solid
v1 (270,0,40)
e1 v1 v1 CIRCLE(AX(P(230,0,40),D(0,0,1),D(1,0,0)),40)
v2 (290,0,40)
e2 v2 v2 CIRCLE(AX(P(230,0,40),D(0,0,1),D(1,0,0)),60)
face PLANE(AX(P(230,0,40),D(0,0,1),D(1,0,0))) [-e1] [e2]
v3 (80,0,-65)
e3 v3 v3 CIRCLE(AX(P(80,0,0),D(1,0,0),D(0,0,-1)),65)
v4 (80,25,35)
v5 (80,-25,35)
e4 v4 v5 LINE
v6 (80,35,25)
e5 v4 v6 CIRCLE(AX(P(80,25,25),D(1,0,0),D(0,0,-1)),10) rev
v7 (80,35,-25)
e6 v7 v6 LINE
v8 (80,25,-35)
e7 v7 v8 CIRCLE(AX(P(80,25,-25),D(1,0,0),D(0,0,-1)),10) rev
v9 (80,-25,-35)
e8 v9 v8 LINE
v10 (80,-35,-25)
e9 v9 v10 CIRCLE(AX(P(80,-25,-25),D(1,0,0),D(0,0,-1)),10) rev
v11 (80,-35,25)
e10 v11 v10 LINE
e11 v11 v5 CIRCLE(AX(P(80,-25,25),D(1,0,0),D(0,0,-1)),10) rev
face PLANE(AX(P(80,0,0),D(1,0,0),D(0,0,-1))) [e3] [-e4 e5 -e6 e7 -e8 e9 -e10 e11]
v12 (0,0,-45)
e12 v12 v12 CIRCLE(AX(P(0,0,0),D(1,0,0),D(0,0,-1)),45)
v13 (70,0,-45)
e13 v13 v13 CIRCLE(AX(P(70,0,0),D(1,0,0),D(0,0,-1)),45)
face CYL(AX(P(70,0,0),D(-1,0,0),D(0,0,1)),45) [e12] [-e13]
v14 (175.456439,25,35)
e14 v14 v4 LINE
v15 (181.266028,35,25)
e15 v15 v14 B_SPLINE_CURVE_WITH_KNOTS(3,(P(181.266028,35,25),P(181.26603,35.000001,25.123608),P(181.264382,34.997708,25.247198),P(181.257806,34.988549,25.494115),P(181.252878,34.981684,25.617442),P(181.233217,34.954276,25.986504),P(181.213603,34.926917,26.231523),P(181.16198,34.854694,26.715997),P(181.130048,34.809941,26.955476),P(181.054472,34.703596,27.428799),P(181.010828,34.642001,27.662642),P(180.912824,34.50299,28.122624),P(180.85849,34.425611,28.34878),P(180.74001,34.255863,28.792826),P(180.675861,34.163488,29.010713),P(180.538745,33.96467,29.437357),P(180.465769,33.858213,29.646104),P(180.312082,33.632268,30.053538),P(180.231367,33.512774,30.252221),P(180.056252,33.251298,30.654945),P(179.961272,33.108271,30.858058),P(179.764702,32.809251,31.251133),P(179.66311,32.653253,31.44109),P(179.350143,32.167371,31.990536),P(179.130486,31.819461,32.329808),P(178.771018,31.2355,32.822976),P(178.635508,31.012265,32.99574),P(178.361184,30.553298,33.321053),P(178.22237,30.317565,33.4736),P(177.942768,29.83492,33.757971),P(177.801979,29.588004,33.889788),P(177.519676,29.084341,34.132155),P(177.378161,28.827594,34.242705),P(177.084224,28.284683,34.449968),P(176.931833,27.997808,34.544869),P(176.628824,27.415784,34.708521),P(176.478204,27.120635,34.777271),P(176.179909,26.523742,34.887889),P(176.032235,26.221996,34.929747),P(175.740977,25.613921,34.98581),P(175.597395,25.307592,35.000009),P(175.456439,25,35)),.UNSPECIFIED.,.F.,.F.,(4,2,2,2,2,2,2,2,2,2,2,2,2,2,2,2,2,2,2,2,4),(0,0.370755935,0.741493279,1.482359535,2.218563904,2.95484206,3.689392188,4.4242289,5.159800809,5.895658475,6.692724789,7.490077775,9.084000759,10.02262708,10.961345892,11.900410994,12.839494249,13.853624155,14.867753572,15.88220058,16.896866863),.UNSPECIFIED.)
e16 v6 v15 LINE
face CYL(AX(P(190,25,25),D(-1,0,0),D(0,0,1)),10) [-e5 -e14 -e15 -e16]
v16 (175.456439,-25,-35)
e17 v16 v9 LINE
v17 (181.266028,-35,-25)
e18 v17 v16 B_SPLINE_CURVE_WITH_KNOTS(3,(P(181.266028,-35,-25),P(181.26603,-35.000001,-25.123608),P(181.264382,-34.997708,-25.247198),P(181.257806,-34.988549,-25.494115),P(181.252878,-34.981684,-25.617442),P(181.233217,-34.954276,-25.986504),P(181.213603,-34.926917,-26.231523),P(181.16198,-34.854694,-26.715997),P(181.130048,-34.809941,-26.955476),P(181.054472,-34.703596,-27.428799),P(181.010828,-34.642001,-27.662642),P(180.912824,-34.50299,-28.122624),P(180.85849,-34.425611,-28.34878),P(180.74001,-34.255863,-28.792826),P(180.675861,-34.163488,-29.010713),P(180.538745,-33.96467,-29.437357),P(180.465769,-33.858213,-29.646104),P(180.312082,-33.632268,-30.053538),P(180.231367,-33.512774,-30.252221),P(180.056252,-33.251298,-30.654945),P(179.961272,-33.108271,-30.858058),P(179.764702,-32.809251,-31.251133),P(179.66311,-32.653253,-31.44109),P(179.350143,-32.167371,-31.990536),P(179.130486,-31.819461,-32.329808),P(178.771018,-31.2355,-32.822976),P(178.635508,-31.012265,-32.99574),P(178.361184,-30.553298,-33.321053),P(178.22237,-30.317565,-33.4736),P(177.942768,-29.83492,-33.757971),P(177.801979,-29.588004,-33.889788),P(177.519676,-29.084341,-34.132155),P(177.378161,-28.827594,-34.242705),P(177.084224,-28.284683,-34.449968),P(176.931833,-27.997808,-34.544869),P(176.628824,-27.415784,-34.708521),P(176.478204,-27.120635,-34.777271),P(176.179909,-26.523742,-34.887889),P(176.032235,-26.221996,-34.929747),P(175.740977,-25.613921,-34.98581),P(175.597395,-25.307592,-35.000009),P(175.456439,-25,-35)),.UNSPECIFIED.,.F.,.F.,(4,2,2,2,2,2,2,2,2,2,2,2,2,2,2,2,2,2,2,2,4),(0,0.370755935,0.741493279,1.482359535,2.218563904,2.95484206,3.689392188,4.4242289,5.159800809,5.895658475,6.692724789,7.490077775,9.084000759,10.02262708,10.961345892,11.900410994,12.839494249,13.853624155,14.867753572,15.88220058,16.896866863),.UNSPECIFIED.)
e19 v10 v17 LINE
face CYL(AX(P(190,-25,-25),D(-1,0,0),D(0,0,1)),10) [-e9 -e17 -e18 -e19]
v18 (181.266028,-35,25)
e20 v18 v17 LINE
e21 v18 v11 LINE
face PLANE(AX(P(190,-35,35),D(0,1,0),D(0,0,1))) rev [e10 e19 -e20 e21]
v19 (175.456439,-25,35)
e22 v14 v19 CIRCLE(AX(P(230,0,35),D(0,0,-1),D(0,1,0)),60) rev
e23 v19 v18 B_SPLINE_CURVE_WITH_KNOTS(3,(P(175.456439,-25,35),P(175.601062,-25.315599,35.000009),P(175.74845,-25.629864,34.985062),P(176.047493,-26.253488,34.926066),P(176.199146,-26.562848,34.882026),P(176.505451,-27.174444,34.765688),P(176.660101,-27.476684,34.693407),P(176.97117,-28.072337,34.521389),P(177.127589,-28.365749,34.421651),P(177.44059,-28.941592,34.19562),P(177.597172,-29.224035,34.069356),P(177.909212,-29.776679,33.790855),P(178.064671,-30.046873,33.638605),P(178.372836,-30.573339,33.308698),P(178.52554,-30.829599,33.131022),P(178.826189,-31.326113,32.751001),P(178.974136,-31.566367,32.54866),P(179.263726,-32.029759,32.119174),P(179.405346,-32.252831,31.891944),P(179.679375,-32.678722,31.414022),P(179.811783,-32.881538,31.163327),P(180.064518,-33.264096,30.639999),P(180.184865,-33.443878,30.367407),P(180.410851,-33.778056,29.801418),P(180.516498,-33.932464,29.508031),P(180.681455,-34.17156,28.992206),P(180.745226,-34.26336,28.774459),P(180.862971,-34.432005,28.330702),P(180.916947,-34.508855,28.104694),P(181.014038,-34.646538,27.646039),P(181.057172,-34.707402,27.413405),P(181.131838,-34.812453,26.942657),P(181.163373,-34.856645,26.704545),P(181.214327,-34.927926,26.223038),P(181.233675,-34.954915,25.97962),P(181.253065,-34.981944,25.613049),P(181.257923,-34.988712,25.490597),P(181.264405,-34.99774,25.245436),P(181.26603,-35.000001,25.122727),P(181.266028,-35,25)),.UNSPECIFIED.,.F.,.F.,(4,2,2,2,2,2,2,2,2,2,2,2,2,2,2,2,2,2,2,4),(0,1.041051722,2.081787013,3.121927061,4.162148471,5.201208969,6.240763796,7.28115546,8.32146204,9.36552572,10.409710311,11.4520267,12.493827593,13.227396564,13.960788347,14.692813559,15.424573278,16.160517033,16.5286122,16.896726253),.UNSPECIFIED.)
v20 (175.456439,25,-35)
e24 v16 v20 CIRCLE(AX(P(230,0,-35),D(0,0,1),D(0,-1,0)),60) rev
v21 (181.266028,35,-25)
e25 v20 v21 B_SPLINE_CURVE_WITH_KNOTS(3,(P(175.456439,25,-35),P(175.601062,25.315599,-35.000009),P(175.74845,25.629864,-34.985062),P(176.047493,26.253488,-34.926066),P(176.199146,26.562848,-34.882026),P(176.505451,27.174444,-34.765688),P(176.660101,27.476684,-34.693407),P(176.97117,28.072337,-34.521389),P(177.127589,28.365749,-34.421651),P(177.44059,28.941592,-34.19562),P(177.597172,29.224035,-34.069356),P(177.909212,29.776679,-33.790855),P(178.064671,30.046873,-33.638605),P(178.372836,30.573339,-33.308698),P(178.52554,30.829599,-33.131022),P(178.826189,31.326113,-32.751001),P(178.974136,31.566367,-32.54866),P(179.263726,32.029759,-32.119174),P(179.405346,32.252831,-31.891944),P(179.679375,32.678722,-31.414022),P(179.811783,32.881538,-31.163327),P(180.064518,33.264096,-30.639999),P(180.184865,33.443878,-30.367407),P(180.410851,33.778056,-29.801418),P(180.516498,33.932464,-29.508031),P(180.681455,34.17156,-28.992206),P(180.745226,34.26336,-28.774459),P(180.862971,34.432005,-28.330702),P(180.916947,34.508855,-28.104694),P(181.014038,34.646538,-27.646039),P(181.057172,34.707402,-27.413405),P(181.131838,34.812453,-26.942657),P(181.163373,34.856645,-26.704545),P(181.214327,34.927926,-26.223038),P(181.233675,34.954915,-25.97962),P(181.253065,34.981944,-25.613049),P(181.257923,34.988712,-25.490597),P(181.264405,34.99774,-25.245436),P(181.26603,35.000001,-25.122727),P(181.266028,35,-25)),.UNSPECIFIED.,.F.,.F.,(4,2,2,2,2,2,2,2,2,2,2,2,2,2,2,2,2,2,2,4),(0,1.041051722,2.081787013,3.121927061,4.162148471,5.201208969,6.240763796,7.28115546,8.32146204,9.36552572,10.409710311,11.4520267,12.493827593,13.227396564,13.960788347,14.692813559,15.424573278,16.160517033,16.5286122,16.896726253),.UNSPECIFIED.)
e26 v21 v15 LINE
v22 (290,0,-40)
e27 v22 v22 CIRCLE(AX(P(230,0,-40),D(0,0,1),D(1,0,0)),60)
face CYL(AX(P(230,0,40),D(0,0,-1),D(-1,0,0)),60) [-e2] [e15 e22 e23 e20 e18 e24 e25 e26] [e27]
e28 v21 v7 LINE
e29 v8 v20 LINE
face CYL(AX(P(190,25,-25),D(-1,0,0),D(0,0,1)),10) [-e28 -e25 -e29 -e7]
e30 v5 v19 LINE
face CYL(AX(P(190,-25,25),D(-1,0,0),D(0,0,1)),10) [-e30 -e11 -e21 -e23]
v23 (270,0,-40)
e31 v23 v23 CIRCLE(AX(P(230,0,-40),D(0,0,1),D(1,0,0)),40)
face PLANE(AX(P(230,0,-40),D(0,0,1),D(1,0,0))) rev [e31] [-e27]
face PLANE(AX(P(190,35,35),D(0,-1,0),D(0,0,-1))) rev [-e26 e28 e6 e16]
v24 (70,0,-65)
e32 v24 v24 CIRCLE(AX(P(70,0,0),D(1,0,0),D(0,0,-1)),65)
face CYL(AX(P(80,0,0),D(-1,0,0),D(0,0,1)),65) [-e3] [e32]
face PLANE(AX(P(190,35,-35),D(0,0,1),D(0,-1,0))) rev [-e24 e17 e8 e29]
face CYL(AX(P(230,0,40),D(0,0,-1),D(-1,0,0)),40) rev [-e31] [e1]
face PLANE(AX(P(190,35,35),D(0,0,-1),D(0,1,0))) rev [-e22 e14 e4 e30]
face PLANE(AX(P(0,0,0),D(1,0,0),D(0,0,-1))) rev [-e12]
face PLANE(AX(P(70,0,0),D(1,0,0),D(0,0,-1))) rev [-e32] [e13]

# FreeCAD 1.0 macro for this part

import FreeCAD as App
import Part
import Sketcher


def edges_at(feature, points):
    """Names of the edges that pass closest to the given points."""
    edges = feature.Shape.Edges
    near = lambda p: min(range(len(edges)), key=lambda i: edges[i].distToShape(Part.Vertex(*p))[0])
    return sorted({f"Edge{near(p) + 1}" for p in points})


def add_polygon(sketch, points):
    """Adds a closed chain of lines whose ends are joined by coincident constraints."""
    first, n = sketch.GeometryCount, len(points)
    for a, b in zip(points, points[1:] + points[:1]):
        sketch.addGeometry(Part.LineSegment(App.Vector(*a, 0), App.Vector(*b, 0)), False)
    for i in range(n):
        sketch.addConstraint(Sketcher.Constraint("Coincident", first + i, 2, first + (i + 1) % n, 1))

doc = App.newDocument("Part")
body = doc.addObject("PartDesign::Body", "Body")

# Sketch on YZ plane
sketch1 = body.newObject("Sketcher::SketchObject", "Sketch")
sketch1.AttachmentSupport = (doc.getObject("YZ_Plane"), [""])
sketch1.MapMode = "FlatFace"
sketch1.addGeometry(Part.Circle(App.Vector(0, 0, 0), App.Vector(0, 0, 1), 45), False)
sketch1.addConstraint([
    Sketcher.Constraint("Coincident", 0, 3, -1, 1),
    Sketcher.Constraint("Diameter", 0, 90.0),
])
pad1 = body.newObject("PartDesign::Pad", "Pad")
pad1.Profile = sketch1
pad1.Length = 70

# Sketch on YZ plane
sketch2 = body.newObject("Sketcher::SketchObject", "Sketch001")
sketch2.AttachmentSupport = (doc.getObject("YZ_Plane"), [""])
sketch2.MapMode = "FlatFace"
sketch2.AttachmentOffset = App.Placement(App.Vector(0, 0, 70), App.Rotation())
sketch2.addGeometry(Part.Circle(App.Vector(0, 0, 0), App.Vector(0, 0, 1), 65), False)
sketch2.addConstraint([
    Sketcher.Constraint("Coincident", 0, 3, -1, 1),
    Sketcher.Constraint("Diameter", 0, 130.0),
])
pad2 = body.newObject("PartDesign::Pad", "Pad001")
pad2.Profile = sketch2
pad2.Length = 10
body2 = doc.addObject("PartDesign::Body", "Body001")

# Sketch on XY plane
sketch3 = body2.newObject("Sketcher::SketchObject", "Sketch002")
sketch3.AttachmentSupport = (doc.getObject("XY_Plane001"), [""])
sketch3.MapMode = "FlatFace"
sketch3.addGeometry([
    Part.Circle(App.Vector(230, 0, 0), App.Vector(0, 0, 1), 60),
    Part.Circle(App.Vector(230, 0, 0), App.Vector(0, 0, 1), 40),
], False)
sketch3.addConstraint([
    Sketcher.Constraint("Coincident", 1, 3, 0, 3),
    Sketcher.Constraint("PointOnObject", 0, 3, -1),
    Sketcher.Constraint("Diameter", 0, 120.0),
    Sketcher.Constraint("Diameter", 1, 80.0),
    Sketcher.Constraint("DistanceX", -1, 1, 0, 3, 230.0),
])
pad3 = body2.newObject("PartDesign::Pad", "Pad002")
pad3.Profile = sketch3
pad3.Length = 80
pad3.Midplane = True
body.AllowCompound = True
doc.recompute()

boolean = body.newObject("PartDesign::Boolean", "Boolean")
boolean.Type = "Fuse"
boolean.addObjects([body2])

# Sketch on YZ plane
sketch4 = body.newObject("Sketcher::SketchObject", "Sketch003")
sketch4.AttachmentSupport = (doc.getObject("YZ_Plane"), [""])
sketch4.MapMode = "FlatFace"
sketch4.AttachmentOffset = App.Placement(App.Vector(0, 0, 80), App.Rotation())
add_polygon(sketch4, [(35, 35), (-35, 35), (-35, -35), (35, -35)])  # lines 0-3
sketch4.addConstraint([
    Sketcher.Constraint("Horizontal", 0),
    Sketcher.Constraint("Vertical", 1),
    Sketcher.Constraint("Horizontal", 2),
    Sketcher.Constraint("Vertical", 3),
    Sketcher.Constraint("Symmetric", 0, 2, 2, 2, -1, 1),
    Sketcher.Constraint("Equal", 2, 1),
    Sketcher.Constraint("DistanceX", 0, 2, 0, 1, 70.0),
])
pad4 = body.newObject("PartDesign::Pad", "Pad003")
pad4.Profile = sketch4
pad4.Length = 110
doc.recompute()

fillet = body.newObject("PartDesign::Fillet", "Fillet")
fillet.Base = (pad4, edges_at(pad4, [
    (130.633, -35, -35),
    (130.633, -35, 35),
    (130.633, 35, 35),
    (130.633, 35, -35),
]))
fillet.Radius = 10

doc.recompute()
